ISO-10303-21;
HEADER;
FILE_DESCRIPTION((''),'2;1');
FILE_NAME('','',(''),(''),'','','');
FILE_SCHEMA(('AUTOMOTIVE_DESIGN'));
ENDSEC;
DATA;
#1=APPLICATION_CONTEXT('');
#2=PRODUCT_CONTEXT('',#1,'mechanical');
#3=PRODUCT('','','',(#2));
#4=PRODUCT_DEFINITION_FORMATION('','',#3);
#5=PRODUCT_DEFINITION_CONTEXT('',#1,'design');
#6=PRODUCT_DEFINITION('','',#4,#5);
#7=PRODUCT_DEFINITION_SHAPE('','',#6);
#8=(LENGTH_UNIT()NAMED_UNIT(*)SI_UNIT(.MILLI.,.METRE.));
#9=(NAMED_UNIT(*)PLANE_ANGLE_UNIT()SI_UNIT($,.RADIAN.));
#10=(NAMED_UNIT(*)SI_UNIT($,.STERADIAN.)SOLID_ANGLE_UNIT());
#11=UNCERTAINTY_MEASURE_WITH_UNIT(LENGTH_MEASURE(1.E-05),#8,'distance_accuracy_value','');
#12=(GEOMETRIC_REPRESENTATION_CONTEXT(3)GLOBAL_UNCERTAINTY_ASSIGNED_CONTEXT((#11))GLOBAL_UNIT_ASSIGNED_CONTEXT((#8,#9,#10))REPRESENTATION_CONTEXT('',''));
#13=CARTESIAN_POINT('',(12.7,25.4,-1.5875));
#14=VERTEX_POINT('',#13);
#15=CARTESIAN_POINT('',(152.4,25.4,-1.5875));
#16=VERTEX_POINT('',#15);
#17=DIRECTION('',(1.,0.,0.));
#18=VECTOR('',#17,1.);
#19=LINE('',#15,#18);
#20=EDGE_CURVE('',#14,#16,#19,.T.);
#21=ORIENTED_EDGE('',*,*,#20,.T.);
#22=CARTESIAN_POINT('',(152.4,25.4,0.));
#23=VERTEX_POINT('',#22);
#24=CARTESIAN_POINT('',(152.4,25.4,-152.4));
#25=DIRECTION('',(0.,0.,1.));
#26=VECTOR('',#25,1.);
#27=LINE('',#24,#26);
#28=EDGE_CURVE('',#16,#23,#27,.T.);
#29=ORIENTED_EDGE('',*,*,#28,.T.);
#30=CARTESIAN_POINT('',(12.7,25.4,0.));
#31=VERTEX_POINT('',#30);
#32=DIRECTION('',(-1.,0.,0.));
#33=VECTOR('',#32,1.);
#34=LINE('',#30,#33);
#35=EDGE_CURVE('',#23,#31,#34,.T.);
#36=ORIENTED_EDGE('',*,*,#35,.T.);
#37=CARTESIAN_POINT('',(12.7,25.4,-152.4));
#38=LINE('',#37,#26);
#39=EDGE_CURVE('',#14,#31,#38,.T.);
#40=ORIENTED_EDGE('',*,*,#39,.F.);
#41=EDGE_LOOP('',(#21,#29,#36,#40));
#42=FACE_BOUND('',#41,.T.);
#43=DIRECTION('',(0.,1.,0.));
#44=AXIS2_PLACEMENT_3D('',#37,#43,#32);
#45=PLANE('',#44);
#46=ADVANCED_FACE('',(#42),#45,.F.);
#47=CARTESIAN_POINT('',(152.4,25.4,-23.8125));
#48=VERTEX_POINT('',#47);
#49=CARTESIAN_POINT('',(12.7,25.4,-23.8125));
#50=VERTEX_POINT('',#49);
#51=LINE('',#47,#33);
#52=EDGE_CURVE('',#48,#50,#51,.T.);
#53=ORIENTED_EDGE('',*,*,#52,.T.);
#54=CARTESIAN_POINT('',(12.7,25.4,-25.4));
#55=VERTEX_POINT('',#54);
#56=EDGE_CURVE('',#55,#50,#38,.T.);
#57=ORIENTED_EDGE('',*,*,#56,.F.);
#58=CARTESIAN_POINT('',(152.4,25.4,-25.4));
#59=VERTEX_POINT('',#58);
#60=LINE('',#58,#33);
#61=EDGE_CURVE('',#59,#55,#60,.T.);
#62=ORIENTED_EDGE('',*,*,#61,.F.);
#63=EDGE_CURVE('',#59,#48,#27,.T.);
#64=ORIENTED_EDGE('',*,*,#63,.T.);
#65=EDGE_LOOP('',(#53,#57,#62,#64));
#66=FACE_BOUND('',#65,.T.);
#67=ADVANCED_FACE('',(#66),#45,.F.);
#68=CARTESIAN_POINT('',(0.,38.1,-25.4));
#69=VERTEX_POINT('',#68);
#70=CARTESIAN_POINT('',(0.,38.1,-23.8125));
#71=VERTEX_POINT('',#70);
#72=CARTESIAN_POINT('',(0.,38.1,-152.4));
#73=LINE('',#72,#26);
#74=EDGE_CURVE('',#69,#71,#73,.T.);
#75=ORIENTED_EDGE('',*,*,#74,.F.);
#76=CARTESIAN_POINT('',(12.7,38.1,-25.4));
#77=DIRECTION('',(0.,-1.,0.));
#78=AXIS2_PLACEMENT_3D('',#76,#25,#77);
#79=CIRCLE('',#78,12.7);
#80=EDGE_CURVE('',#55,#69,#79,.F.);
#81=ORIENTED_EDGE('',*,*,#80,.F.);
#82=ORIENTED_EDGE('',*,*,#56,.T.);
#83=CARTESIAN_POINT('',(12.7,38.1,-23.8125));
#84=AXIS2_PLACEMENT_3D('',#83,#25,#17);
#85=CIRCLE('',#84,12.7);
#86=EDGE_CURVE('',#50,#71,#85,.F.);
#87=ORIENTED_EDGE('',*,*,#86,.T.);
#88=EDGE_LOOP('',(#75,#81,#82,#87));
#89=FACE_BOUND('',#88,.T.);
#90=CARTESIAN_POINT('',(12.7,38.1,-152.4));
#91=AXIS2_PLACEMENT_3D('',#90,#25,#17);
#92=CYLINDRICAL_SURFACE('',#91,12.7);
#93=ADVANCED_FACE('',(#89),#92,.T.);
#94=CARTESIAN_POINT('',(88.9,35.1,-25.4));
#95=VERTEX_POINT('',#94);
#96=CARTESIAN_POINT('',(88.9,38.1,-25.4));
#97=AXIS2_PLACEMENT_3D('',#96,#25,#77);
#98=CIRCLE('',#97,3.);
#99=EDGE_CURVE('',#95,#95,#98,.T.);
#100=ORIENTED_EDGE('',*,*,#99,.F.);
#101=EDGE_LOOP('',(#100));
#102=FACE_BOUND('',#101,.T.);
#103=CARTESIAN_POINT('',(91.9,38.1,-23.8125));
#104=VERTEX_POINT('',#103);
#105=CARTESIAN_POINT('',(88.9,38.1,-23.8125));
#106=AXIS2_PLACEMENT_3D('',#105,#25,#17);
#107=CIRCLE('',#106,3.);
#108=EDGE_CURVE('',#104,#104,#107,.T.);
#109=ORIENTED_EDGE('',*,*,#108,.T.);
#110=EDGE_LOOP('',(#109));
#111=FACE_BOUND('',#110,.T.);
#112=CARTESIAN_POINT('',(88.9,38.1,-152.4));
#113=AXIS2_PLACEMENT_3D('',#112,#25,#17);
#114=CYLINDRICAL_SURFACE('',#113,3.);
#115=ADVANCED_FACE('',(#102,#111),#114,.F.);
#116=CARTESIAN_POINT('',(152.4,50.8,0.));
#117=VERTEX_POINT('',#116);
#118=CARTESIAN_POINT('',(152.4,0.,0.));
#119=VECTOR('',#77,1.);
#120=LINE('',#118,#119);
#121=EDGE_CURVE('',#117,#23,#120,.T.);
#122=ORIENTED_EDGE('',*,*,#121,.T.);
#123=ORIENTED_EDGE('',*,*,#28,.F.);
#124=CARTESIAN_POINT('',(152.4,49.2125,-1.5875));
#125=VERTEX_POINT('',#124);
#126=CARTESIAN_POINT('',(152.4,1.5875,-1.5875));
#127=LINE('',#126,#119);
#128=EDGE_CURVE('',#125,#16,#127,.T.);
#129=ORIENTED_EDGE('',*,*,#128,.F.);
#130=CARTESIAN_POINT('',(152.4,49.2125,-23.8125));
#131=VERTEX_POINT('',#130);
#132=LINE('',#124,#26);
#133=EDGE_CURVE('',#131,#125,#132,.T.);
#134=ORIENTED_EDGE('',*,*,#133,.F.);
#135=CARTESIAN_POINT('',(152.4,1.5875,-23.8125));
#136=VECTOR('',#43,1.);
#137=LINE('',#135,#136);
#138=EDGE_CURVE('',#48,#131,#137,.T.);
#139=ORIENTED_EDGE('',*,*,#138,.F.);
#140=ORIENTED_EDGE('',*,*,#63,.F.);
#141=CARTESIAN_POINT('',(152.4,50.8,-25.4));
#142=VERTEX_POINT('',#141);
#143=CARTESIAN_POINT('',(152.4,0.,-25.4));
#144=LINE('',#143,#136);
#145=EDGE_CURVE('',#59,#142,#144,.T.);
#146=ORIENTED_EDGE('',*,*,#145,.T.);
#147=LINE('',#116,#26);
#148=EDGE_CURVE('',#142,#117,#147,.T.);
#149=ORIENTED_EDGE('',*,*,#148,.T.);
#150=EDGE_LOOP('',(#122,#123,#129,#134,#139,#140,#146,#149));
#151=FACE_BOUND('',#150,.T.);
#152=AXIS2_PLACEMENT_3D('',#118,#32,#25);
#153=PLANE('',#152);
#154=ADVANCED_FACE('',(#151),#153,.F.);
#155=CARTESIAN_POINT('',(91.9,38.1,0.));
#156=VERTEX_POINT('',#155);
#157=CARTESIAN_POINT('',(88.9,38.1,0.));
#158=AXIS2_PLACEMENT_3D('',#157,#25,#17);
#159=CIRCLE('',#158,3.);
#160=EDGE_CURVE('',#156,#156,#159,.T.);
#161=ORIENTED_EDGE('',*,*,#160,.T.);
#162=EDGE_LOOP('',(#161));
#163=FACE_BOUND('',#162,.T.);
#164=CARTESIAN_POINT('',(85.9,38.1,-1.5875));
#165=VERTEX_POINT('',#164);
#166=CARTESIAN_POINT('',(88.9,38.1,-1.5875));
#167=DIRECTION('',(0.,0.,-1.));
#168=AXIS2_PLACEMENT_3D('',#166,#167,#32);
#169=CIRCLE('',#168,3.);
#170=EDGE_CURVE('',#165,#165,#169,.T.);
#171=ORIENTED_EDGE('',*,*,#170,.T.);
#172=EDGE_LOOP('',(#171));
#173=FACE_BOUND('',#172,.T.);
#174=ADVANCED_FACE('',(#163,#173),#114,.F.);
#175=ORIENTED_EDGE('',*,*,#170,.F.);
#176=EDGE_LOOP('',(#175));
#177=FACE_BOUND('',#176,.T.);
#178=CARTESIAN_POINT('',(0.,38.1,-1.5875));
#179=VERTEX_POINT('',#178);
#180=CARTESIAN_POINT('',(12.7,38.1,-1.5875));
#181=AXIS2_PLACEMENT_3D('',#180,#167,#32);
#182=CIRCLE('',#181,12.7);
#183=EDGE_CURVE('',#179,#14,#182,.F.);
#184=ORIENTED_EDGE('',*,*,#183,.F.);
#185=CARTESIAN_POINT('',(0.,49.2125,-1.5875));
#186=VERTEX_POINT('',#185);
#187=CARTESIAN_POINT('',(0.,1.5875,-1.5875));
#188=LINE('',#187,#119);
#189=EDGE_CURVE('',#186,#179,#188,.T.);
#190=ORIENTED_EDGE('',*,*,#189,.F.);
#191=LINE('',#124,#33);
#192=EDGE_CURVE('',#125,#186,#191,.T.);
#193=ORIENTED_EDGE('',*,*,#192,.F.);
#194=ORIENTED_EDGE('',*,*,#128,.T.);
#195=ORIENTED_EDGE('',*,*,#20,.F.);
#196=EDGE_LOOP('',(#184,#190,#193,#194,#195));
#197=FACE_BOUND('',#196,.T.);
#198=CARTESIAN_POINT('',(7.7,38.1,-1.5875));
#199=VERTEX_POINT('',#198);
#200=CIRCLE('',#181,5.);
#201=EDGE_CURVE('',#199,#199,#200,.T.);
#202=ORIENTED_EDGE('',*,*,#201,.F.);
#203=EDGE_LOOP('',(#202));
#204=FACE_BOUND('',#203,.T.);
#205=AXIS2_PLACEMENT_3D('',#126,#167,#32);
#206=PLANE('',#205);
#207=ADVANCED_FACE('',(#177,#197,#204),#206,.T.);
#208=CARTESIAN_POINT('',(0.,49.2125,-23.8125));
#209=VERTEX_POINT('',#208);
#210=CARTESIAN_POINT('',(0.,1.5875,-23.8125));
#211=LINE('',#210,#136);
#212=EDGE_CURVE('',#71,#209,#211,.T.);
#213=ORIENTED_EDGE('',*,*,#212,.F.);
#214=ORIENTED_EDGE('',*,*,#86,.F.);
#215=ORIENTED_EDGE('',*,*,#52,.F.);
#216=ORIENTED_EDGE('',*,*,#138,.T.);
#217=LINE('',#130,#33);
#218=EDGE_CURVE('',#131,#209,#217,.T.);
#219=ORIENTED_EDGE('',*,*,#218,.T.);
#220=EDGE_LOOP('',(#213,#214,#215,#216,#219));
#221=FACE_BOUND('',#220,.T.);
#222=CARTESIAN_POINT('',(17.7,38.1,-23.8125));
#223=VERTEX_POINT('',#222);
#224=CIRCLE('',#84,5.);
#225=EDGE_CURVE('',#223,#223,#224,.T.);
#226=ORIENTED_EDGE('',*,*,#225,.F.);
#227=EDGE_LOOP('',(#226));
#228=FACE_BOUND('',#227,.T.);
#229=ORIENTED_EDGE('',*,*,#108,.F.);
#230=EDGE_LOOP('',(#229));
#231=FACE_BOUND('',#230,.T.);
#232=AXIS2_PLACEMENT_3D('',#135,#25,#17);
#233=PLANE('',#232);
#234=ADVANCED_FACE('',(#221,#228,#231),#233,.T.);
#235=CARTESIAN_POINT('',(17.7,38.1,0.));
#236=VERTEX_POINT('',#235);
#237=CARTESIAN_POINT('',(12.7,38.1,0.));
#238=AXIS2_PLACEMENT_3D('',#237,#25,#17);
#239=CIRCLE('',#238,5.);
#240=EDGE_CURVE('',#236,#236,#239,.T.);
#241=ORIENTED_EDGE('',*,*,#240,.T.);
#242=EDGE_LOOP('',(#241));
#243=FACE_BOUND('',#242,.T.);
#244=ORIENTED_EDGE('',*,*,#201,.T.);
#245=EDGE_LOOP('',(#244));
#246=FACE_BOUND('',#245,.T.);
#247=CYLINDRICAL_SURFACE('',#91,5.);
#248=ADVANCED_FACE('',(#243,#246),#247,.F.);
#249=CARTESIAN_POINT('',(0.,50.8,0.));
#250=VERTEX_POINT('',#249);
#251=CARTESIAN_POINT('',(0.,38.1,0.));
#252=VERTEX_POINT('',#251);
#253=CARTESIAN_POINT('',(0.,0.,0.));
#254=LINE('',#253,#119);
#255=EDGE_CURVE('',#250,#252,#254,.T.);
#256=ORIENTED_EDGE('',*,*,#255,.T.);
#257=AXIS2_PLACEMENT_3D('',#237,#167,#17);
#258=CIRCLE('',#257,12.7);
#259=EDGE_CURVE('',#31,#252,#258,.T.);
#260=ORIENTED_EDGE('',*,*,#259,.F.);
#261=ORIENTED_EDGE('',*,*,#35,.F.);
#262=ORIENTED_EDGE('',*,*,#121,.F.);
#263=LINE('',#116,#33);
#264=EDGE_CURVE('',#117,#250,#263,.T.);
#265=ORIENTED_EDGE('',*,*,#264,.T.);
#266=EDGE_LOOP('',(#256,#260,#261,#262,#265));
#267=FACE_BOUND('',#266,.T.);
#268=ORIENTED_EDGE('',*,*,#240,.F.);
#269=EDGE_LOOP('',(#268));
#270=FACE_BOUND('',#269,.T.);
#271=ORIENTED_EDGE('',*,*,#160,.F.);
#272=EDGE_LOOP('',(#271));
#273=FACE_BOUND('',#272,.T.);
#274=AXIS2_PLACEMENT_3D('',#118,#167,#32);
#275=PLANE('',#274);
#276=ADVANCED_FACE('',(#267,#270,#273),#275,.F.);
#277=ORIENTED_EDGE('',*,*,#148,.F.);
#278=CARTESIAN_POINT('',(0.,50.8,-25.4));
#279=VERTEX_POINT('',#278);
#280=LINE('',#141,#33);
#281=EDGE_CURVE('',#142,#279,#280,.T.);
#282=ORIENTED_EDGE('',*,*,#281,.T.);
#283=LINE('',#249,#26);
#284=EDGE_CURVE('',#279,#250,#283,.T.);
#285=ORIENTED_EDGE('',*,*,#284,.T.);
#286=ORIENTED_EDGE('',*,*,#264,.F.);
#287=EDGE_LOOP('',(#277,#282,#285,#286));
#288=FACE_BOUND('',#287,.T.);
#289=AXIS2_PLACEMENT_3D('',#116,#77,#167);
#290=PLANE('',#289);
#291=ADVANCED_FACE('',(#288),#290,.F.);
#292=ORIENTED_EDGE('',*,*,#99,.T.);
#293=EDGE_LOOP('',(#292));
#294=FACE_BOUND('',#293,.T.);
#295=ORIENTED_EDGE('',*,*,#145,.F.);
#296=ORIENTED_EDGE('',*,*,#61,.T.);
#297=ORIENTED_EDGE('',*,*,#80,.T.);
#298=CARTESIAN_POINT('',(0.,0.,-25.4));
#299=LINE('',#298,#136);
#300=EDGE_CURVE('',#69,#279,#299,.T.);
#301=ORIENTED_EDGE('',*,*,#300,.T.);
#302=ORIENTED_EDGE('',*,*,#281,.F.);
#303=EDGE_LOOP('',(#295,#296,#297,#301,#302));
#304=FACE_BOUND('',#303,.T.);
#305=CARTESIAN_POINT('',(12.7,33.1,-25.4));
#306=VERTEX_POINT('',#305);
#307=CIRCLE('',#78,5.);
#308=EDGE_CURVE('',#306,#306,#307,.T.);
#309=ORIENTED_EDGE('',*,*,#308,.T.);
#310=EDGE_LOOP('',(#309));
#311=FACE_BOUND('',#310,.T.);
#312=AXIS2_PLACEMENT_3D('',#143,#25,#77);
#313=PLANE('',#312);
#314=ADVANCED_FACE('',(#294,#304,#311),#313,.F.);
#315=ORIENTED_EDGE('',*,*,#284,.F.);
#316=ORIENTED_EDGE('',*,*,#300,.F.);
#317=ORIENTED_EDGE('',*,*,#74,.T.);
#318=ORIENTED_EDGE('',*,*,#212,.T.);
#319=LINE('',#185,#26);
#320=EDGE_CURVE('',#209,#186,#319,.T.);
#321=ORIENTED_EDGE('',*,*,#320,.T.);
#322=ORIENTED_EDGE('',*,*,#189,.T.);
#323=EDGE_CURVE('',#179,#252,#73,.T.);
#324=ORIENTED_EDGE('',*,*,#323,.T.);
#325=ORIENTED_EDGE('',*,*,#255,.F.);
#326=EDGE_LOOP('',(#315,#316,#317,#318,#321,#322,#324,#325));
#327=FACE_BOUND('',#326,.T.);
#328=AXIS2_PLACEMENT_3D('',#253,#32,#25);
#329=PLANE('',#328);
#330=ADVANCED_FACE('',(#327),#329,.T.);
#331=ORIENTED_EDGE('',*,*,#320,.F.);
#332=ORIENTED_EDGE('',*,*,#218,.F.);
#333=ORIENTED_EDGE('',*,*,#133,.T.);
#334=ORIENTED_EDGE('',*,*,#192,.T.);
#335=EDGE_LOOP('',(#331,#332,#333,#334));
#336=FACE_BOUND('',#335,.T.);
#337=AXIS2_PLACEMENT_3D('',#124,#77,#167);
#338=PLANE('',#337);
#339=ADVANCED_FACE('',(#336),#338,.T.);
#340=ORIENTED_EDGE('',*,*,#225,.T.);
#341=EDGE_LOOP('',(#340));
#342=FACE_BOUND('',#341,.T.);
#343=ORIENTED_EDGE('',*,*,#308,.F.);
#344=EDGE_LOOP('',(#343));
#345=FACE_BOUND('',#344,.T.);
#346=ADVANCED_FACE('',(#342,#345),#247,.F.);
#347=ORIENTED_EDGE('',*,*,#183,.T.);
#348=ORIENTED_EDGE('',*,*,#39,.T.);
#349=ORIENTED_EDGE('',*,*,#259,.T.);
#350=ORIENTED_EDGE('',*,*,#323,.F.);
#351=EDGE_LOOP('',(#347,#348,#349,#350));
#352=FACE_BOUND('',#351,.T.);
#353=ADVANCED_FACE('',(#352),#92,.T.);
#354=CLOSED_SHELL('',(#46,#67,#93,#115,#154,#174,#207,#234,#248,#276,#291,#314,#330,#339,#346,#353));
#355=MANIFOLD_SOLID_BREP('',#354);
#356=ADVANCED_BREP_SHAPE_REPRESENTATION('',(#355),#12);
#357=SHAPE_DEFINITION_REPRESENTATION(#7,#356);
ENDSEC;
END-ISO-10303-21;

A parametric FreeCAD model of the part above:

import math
import FreeCAD as App
import Part
import Sketcher

V = App.Vector
Q = App.Units.Quantity

doc = App.newDocument("Part")
body = doc.addObject("PartDesign::Body", "Body")

# Sketch on YZ plane
sketch1 = body.newObject("Sketcher::SketchObject", "Sketch")
sketch1.AttachmentSupport = (doc.getObject("YZ_Plane"), [""])
sketch1.MapMode = "FlatFace"
sketch1.addGeometry(Part.LineSegment(V(51, 0, 0), V(0, 0, 0)), False)
sketch1.addGeometry(Part.LineSegment(V(0, 0, 0), V(0, -25, 0)), False)
sketch1.addGeometry(Part.LineSegment(V(0, -25, 0), V(51, -25, 0)), False)
sketch1.addGeometry(Part.LineSegment(V(51, -25, 0), V(51, 0, 0)), False)
sketch1.addGeometry(Part.LineSegment(V(2, -24, 0), V(2, -2, 0)), False)
sketch1.addGeometry(Part.LineSegment(V(2, -2, 0), V(49, -2, 0)), False)
sketch1.addGeometry(Part.LineSegment(V(49, -2, 0), V(49, -24, 0)), False)
sketch1.addGeometry(Part.LineSegment(V(49, -24, 0), V(2, -24, 0)), False)
sketch1.addConstraint(Sketcher.Constraint("Coincident", 0, 2, 1, 1))
sketch1.addConstraint(Sketcher.Constraint("Coincident", 1, 2, 2, 1))
sketch1.addConstraint(Sketcher.Constraint("Coincident", 2, 2, 3, 1))
sketch1.addConstraint(Sketcher.Constraint("Coincident", 3, 2, 0, 1))
sketch1.addConstraint(Sketcher.Constraint("Coincident", 4, 2, 5, 1))
sketch1.addConstraint(Sketcher.Constraint("Coincident", 5, 2, 6, 1))
sketch1.addConstraint(Sketcher.Constraint("Coincident", 6, 2, 7, 1))
sketch1.addConstraint(Sketcher.Constraint("Coincident", 7, 2, 4, 1))
sketch1.addConstraint(Sketcher.Constraint("Horizontal", 0))
sketch1.addConstraint(Sketcher.Constraint("Vertical", 1))
sketch1.addConstraint(Sketcher.Constraint("Horizontal", 2))
sketch1.addConstraint(Sketcher.Constraint("Vertical", 3))
sketch1.addConstraint(Sketcher.Constraint("Vertical", 4))
sketch1.addConstraint(Sketcher.Constraint("Horizontal", 5))
sketch1.addConstraint(Sketcher.Constraint("Vertical", 6))
sketch1.addConstraint(Sketcher.Constraint("Horizontal", 7))
sketch1.addConstraint(Sketcher.Constraint("Coincident", 0, 2, -1, 1))
sketch1.addConstraint(Sketcher.Constraint("DistanceX", 0, 2, 0, 1, Q("2 in")))
sketch1.addConstraint(Sketcher.Constraint("DistanceY", 1, 2, 1, 1, Q("1 in")))
sketch1.addConstraint(Sketcher.Constraint("DistanceX", 5, 1, 5, 2, Q("1.875 in")))
sketch1.addConstraint(Sketcher.Constraint("DistanceY", 4, 1, 4, 2, Q("0.875 in")))
sketch1.addConstraint(Sketcher.Constraint("DistanceX", -1, 1, 4, 2, Q("0.0625 in")))
sketch1.addConstraint(Sketcher.Constraint("DistanceY", 4, 2, -1, 1, Q("0.0625 in")))
pad1 = body.newObject("PartDesign::Pad", "Pad")
pad1.Profile = sketch1
pad1.Length = Q("6 in")

# Sketch on XY plane
sketch2 = body.newObject("Sketcher::SketchObject", "Sketch001")
sketch2.AttachmentSupport = (doc.getObject("XY_Plane"), [""])
sketch2.MapMode = "FlatFace"
sketch2.addGeometry(Part.Circle(V(12.7, 38.1, 0), V(0, 0, 1), 5), False)
sketch2.addGeometry(Part.Circle(V(88.9, 38.1, 0), V(0, 0, 1), 3), False)
sketch2.addGeometry(Part.LineSegment(V(152.4, 25.4, 0), V(12.7, 25.4, 0)), False)
sketch2.addGeometry(Part.ArcOfCircle(Part.Circle(V(12.7, 38.1, 0), V(0, 0, 1), 12.7), math.radians(180), math.radians(270)), False)
sketch2.addGeometry(Part.LineSegment(V(0, 38.1, 0), V(0, 0, 0)), False)
sketch2.addGeometry(Part.LineSegment(V(0, 0, 0), V(152.4, 0, 0)), False)
sketch2.addGeometry(Part.LineSegment(V(152.4, 0, 0), V(152.4, 25.4, 0)), False)
sketch2.addConstraint(Sketcher.Constraint("Tangent", 2, 2, 3, 2))
sketch2.addConstraint(Sketcher.Constraint("Tangent", 3, 1, 4, 1))
sketch2.addConstraint(Sketcher.Constraint("Coincident", 4, 2, 5, 1))
sketch2.addConstraint(Sketcher.Constraint("Coincident", 5, 2, 6, 1))
sketch2.addConstraint(Sketcher.Constraint("Coincident", 6, 2, 2, 1))
sketch2.addConstraint(Sketcher.Constraint("Horizontal", 2))
sketch2.addConstraint(Sketcher.Constraint("Vertical", 4))
sketch2.addConstraint(Sketcher.Constraint("Horizontal", 5))
sketch2.addConstraint(Sketcher.Constraint("Vertical", 6))
sketch2.addConstraint(Sketcher.Constraint("Coincident", 4, 2, -1, 1))
sketch2.addConstraint(Sketcher.Constraint("Coincident", 3, 3, 0, 3))
sketch2.addConstraint(Sketcher.Constraint("Horizontal", 0, 3, 1, 3))
sketch2.addConstraint(Sketcher.Constraint("Radius", 3, Q("0.5 in")))
sketch2.addConstraint(Sketcher.Constraint("DistanceX", 5, 1, 5, 2, Q("6 in")))
sketch2.addConstraint(Sketcher.Constraint("DistanceY", 6, 1, 6, 2, Q("1 in")))
sketch2.addConstraint(Sketcher.Constraint("DistanceX", 0, 3, 1, 3, Q("3 in")))
sketch2.addConstraint(Sketcher.Constraint("Diameter", 0, Q("10 mm")))
sketch2.addConstraint(Sketcher.Constraint("Diameter", 1, Q("6 mm")))
pocket1 = body.newObject("PartDesign::Pocket", "Pocket")
pocket1.Profile = sketch2
pocket1.Length = Q("6 in")

doc.recompute()
